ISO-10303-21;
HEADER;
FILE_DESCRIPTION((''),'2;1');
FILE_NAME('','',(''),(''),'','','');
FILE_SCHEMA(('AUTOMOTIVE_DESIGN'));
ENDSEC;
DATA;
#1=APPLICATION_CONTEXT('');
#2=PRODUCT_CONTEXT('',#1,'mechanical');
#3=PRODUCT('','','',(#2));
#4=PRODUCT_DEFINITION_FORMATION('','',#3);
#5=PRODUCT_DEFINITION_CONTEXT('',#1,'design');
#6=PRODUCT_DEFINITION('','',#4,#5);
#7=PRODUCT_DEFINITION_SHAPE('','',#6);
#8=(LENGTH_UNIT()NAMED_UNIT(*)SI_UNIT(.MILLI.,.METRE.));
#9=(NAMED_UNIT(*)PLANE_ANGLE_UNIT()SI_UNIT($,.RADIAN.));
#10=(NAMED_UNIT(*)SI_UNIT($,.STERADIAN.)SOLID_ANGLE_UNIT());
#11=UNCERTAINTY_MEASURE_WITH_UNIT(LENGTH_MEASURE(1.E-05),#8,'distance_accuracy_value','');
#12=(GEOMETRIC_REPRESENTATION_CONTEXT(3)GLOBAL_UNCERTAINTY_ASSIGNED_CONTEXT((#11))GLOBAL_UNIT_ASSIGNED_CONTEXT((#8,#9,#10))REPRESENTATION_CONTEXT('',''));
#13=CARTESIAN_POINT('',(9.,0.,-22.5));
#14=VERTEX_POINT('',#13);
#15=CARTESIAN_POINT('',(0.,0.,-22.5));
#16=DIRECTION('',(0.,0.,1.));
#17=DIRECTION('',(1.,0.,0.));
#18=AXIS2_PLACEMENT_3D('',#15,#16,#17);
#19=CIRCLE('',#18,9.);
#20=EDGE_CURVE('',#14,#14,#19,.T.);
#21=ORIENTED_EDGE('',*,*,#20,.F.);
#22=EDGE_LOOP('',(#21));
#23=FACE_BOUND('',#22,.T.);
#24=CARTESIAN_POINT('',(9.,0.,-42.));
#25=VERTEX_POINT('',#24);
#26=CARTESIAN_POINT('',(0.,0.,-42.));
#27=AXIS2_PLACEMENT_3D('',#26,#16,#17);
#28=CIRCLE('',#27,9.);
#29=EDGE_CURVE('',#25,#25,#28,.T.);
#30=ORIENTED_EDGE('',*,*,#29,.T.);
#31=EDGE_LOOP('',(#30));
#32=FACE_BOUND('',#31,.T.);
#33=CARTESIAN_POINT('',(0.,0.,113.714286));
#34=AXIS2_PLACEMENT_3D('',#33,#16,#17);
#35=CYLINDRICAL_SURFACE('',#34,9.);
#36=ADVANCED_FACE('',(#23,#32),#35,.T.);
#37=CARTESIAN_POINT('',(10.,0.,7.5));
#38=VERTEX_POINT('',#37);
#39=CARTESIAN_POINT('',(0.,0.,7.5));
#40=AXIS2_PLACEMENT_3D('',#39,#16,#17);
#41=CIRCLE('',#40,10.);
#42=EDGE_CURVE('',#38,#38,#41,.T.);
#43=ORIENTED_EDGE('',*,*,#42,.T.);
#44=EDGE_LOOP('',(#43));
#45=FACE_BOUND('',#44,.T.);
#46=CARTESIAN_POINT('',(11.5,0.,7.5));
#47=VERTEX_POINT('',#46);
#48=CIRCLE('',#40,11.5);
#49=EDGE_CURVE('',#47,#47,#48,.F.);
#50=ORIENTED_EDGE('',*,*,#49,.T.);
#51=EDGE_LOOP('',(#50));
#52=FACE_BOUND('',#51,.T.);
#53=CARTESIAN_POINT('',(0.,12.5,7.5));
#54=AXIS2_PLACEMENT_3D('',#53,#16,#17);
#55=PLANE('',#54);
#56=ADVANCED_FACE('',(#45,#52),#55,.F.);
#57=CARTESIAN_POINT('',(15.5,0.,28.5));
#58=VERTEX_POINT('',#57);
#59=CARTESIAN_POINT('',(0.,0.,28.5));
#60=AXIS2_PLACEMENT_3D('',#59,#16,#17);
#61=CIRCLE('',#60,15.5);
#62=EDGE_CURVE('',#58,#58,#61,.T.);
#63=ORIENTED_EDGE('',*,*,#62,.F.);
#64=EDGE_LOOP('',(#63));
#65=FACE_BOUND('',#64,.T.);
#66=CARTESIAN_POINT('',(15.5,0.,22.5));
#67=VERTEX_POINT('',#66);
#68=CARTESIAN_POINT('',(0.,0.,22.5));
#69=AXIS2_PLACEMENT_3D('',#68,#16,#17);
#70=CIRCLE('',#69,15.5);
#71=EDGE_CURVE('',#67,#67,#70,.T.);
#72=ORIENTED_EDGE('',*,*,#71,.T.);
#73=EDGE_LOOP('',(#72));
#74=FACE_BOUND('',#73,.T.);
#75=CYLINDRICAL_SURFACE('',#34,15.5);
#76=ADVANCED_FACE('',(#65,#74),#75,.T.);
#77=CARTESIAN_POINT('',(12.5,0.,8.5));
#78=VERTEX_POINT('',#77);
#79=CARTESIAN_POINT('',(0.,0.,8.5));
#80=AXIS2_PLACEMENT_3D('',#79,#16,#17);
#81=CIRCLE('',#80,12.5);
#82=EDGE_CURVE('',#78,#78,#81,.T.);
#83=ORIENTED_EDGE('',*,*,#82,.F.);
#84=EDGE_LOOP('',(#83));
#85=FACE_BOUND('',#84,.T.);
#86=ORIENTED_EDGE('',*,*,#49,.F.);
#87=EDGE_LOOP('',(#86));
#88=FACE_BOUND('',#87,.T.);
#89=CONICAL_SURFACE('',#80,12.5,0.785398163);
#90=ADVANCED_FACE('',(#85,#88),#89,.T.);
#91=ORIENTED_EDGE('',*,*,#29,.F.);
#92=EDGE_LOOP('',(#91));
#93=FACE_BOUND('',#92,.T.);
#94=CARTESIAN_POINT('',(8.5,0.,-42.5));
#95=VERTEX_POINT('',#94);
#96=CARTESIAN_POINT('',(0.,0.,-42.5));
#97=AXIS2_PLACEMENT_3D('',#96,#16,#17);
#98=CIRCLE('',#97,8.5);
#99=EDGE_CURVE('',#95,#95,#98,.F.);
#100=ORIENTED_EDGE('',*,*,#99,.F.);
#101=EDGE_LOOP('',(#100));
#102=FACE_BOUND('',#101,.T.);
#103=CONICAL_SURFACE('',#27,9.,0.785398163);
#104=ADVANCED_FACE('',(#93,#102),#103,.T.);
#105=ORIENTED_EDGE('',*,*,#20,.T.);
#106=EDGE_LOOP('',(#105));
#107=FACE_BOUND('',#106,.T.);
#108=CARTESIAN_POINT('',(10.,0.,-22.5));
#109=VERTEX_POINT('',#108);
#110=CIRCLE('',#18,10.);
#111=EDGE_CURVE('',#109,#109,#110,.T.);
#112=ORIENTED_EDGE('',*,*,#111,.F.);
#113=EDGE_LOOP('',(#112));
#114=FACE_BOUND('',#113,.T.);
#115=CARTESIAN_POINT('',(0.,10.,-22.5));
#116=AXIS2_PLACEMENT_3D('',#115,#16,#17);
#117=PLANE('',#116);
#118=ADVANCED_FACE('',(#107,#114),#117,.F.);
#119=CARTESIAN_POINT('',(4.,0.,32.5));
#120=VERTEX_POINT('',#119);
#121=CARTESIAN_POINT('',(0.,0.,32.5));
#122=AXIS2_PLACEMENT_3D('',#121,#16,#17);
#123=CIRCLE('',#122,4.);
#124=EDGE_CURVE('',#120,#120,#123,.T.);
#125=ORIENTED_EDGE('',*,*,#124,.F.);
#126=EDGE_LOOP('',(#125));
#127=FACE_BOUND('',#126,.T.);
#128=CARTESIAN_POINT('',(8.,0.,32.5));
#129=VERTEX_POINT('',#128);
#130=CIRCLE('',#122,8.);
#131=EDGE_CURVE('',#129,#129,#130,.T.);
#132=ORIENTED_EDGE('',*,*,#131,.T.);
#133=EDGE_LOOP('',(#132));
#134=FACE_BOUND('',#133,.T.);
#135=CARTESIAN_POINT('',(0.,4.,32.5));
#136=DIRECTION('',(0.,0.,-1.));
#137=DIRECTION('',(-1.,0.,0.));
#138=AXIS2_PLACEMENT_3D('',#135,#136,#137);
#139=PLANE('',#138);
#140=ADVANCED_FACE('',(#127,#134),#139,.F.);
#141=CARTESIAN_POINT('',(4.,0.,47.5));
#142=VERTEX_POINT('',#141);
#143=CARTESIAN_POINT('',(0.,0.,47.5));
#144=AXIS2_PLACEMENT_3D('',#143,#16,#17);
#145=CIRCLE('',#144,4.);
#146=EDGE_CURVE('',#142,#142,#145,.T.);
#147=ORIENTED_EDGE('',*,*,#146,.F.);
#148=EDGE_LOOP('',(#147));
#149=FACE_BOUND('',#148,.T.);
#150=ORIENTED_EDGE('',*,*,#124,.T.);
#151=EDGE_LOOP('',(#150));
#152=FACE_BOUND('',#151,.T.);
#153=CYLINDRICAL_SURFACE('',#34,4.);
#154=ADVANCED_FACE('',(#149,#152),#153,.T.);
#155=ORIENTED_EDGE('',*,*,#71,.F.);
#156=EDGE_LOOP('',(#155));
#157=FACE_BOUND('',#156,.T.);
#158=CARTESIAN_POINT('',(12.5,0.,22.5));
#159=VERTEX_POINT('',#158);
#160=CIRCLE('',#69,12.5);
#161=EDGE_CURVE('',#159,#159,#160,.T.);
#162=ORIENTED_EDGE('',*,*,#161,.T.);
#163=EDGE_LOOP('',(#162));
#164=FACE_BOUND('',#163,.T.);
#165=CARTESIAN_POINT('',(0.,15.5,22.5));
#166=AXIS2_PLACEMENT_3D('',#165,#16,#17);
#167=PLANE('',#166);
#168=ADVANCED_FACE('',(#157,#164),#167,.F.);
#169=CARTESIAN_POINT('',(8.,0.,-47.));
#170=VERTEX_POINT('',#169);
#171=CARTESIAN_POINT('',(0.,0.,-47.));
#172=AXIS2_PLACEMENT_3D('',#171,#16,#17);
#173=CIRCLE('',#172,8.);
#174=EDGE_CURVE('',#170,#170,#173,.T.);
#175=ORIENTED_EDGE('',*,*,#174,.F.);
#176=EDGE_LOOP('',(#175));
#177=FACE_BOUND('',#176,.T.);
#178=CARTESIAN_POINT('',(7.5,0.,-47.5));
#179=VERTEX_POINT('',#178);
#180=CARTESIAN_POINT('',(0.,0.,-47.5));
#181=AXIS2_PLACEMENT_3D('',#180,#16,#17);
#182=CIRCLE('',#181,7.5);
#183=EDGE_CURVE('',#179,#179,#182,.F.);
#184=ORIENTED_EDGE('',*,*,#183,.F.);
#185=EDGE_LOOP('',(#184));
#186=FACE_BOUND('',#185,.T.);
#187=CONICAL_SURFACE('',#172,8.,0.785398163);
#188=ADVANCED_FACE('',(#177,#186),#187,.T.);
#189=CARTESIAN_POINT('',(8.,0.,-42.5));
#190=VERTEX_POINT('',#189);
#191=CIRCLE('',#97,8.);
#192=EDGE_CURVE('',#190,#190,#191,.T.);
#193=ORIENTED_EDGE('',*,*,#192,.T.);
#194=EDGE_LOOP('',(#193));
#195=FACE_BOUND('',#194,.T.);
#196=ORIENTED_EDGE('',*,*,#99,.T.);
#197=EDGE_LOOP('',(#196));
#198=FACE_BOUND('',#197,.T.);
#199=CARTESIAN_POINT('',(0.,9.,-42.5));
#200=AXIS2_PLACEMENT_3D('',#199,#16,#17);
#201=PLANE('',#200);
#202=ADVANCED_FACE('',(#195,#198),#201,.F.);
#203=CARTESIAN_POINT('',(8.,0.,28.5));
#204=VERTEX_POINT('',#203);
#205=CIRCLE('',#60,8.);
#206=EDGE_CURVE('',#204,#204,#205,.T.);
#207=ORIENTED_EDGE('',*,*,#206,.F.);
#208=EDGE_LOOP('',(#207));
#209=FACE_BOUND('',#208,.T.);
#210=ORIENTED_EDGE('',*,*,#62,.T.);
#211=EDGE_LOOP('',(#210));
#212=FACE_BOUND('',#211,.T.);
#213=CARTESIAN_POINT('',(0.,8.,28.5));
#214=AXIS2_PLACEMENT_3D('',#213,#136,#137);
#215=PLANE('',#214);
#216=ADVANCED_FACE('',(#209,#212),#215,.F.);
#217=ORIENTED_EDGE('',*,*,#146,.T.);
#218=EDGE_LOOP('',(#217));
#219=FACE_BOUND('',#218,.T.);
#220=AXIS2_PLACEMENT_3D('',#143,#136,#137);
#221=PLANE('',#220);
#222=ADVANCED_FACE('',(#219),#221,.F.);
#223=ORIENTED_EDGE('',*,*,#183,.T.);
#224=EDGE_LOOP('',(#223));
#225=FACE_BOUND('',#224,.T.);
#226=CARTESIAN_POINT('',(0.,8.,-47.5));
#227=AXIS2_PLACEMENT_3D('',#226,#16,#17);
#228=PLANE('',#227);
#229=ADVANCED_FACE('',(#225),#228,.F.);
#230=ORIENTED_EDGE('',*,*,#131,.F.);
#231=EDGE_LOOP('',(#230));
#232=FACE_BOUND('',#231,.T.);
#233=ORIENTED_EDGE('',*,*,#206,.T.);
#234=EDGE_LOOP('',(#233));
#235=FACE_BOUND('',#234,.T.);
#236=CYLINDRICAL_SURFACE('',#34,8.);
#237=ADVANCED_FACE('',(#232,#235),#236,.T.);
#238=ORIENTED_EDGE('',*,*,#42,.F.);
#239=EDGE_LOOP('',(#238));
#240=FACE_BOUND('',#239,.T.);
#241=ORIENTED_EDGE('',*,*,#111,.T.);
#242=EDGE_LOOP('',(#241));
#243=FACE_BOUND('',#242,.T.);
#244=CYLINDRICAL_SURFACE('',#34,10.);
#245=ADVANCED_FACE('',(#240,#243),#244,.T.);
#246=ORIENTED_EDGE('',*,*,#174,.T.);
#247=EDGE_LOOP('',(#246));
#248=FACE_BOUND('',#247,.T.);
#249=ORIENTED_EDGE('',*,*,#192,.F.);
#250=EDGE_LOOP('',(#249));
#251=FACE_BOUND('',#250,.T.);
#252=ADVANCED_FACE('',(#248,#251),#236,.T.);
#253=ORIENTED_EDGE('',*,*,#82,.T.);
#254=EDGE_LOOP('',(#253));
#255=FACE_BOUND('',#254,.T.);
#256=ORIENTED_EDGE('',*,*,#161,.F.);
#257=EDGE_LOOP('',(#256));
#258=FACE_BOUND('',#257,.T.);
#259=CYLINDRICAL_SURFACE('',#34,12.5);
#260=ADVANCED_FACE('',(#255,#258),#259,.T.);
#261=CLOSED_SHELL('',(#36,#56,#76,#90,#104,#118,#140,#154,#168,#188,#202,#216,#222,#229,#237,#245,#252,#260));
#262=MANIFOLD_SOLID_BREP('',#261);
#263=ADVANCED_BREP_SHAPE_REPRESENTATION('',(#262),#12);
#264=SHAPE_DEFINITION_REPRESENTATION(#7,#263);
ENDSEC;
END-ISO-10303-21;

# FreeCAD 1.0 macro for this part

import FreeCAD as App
import Part
import Sketcher
from FreeCAD import Vector


def edges_at(feature, points):
    """Names of the edges that pass closest to the given points."""
    edges = feature.Shape.Edges
    near = lambda p: min(range(len(edges)), key=lambda i: edges[i].distToShape(Part.Vertex(*p))[0])
    return sorted({f"Edge{near(p) + 1}" for p in points})


def add_polygon(sketch, points):
    """Adds a closed chain of lines whose ends are joined by coincident constraints."""
    first, n = sketch.GeometryCount, len(points)
    for a, b in zip(points, points[1:] + points[:1]):
        sketch.addGeometry(Part.LineSegment(App.Vector(*a, 0), App.Vector(*b, 0)), False)
    for i in range(n):
        sketch.addConstraint(Sketcher.Constraint("Coincident", first + i, 2, first + (i + 1) % n, 1))

doc = App.newDocument("Part")
body = doc.addObject("PartDesign::Body", "Body")

# Sketch on YZ plane
sketch1 = body.newObject("Sketcher::SketchObject", "Sketch")
sketch1.AttachmentSupport = (doc.getObject("YZ_Plane"), [""])
sketch1.MapMode = "FlatFace"
add_polygon(sketch1, [(4, 47.5), (0, 47.5), (0, -47.5), (8, -47.5), (8, -42.5), (9, -42.5), (9, -22.5), (10, -22.5), (10, 7.5), (12.5, 7.5), (12.5, 22.5), (15.5, 22.5), (15.5, 28.5), (8, 28.5), (8, 32.5), (4, 32.5)])  # lines 0-15
sketch1.addConstraint([
    Sketcher.Constraint("Horizontal", 0),
    Sketcher.Constraint("Vertical", 1),
    Sketcher.Constraint("Horizontal", 2),
    Sketcher.Constraint("Vertical", 3),
    Sketcher.Constraint("Horizontal", 4),
    Sketcher.Constraint("Vertical", 5),
    Sketcher.Constraint("Horizontal", 6),
    Sketcher.Constraint("Vertical", 7),
    Sketcher.Constraint("Horizontal", 8),
    Sketcher.Constraint("Vertical", 9),
    Sketcher.Constraint("Horizontal", 10),
    Sketcher.Constraint("Vertical", 11),
    Sketcher.Constraint("Horizontal", 12),
    Sketcher.Constraint("Vertical", 13),
    Sketcher.Constraint("Horizontal", 14),
    Sketcher.Constraint("Vertical", 15),
    Sketcher.Constraint("Symmetric", 0, 2, 1, 2, -1, 1),
    Sketcher.Constraint("Vertical", 3, 2, 12, 2),
    Sketcher.Constraint("Equal", 4, 6),
    Sketcher.Constraint("Equal", 0, 14),
    Sketcher.Constraint("Equal", 14, 13),
    Sketcher.Constraint("Equal", 9, 15),
    Sketcher.Constraint("DistanceX", 0, 2, 0, 1, 4.0),
    Sketcher.Constraint("DistanceX", 4, 1, 4, 2, 1.0),
    Sketcher.Constraint("DistanceX", 10, 1, 10, 2, 3.0),
    Sketcher.Constraint("DistanceY", 1, 2, 1, 1, 95.0),
    Sketcher.Constraint("DistanceY", 3, 1, 3, 2, 5.0),
    Sketcher.Constraint("DistanceY", 5, 1, 5, 2, 20.0),
    Sketcher.Constraint("DistanceY", 7, 1, 7, 2, 30.0),
    Sketcher.Constraint("DistanceY", 9, 1, 9, 2, 15.0),
    Sketcher.Constraint("DistanceX", 8, 1, 8, 2, 2.5),
])
revolution = body.newObject("PartDesign::Revolution", "Revolution")
revolution.Profile = sketch1
revolution.ReferenceAxis = (sketch1, ["V_Axis"])
revolution.Angle = 360
doc.recompute()

chamfer = body.newObject("PartDesign::Chamfer", "Chamfer")
chamfer.Base = (revolution, edges_at(revolution, [(-12.5, 0, 7.5)]))
chamfer.Size = 1
doc.recompute()

chamfer2 = body.newObject("PartDesign::Chamfer", "Chamfer001")
chamfer2.Base = (chamfer, edges_at(chamfer, [(-8, 0, -47.5), (-9, 0, -42.5)]))
chamfer2.Size = 0.5

doc.recompute()
